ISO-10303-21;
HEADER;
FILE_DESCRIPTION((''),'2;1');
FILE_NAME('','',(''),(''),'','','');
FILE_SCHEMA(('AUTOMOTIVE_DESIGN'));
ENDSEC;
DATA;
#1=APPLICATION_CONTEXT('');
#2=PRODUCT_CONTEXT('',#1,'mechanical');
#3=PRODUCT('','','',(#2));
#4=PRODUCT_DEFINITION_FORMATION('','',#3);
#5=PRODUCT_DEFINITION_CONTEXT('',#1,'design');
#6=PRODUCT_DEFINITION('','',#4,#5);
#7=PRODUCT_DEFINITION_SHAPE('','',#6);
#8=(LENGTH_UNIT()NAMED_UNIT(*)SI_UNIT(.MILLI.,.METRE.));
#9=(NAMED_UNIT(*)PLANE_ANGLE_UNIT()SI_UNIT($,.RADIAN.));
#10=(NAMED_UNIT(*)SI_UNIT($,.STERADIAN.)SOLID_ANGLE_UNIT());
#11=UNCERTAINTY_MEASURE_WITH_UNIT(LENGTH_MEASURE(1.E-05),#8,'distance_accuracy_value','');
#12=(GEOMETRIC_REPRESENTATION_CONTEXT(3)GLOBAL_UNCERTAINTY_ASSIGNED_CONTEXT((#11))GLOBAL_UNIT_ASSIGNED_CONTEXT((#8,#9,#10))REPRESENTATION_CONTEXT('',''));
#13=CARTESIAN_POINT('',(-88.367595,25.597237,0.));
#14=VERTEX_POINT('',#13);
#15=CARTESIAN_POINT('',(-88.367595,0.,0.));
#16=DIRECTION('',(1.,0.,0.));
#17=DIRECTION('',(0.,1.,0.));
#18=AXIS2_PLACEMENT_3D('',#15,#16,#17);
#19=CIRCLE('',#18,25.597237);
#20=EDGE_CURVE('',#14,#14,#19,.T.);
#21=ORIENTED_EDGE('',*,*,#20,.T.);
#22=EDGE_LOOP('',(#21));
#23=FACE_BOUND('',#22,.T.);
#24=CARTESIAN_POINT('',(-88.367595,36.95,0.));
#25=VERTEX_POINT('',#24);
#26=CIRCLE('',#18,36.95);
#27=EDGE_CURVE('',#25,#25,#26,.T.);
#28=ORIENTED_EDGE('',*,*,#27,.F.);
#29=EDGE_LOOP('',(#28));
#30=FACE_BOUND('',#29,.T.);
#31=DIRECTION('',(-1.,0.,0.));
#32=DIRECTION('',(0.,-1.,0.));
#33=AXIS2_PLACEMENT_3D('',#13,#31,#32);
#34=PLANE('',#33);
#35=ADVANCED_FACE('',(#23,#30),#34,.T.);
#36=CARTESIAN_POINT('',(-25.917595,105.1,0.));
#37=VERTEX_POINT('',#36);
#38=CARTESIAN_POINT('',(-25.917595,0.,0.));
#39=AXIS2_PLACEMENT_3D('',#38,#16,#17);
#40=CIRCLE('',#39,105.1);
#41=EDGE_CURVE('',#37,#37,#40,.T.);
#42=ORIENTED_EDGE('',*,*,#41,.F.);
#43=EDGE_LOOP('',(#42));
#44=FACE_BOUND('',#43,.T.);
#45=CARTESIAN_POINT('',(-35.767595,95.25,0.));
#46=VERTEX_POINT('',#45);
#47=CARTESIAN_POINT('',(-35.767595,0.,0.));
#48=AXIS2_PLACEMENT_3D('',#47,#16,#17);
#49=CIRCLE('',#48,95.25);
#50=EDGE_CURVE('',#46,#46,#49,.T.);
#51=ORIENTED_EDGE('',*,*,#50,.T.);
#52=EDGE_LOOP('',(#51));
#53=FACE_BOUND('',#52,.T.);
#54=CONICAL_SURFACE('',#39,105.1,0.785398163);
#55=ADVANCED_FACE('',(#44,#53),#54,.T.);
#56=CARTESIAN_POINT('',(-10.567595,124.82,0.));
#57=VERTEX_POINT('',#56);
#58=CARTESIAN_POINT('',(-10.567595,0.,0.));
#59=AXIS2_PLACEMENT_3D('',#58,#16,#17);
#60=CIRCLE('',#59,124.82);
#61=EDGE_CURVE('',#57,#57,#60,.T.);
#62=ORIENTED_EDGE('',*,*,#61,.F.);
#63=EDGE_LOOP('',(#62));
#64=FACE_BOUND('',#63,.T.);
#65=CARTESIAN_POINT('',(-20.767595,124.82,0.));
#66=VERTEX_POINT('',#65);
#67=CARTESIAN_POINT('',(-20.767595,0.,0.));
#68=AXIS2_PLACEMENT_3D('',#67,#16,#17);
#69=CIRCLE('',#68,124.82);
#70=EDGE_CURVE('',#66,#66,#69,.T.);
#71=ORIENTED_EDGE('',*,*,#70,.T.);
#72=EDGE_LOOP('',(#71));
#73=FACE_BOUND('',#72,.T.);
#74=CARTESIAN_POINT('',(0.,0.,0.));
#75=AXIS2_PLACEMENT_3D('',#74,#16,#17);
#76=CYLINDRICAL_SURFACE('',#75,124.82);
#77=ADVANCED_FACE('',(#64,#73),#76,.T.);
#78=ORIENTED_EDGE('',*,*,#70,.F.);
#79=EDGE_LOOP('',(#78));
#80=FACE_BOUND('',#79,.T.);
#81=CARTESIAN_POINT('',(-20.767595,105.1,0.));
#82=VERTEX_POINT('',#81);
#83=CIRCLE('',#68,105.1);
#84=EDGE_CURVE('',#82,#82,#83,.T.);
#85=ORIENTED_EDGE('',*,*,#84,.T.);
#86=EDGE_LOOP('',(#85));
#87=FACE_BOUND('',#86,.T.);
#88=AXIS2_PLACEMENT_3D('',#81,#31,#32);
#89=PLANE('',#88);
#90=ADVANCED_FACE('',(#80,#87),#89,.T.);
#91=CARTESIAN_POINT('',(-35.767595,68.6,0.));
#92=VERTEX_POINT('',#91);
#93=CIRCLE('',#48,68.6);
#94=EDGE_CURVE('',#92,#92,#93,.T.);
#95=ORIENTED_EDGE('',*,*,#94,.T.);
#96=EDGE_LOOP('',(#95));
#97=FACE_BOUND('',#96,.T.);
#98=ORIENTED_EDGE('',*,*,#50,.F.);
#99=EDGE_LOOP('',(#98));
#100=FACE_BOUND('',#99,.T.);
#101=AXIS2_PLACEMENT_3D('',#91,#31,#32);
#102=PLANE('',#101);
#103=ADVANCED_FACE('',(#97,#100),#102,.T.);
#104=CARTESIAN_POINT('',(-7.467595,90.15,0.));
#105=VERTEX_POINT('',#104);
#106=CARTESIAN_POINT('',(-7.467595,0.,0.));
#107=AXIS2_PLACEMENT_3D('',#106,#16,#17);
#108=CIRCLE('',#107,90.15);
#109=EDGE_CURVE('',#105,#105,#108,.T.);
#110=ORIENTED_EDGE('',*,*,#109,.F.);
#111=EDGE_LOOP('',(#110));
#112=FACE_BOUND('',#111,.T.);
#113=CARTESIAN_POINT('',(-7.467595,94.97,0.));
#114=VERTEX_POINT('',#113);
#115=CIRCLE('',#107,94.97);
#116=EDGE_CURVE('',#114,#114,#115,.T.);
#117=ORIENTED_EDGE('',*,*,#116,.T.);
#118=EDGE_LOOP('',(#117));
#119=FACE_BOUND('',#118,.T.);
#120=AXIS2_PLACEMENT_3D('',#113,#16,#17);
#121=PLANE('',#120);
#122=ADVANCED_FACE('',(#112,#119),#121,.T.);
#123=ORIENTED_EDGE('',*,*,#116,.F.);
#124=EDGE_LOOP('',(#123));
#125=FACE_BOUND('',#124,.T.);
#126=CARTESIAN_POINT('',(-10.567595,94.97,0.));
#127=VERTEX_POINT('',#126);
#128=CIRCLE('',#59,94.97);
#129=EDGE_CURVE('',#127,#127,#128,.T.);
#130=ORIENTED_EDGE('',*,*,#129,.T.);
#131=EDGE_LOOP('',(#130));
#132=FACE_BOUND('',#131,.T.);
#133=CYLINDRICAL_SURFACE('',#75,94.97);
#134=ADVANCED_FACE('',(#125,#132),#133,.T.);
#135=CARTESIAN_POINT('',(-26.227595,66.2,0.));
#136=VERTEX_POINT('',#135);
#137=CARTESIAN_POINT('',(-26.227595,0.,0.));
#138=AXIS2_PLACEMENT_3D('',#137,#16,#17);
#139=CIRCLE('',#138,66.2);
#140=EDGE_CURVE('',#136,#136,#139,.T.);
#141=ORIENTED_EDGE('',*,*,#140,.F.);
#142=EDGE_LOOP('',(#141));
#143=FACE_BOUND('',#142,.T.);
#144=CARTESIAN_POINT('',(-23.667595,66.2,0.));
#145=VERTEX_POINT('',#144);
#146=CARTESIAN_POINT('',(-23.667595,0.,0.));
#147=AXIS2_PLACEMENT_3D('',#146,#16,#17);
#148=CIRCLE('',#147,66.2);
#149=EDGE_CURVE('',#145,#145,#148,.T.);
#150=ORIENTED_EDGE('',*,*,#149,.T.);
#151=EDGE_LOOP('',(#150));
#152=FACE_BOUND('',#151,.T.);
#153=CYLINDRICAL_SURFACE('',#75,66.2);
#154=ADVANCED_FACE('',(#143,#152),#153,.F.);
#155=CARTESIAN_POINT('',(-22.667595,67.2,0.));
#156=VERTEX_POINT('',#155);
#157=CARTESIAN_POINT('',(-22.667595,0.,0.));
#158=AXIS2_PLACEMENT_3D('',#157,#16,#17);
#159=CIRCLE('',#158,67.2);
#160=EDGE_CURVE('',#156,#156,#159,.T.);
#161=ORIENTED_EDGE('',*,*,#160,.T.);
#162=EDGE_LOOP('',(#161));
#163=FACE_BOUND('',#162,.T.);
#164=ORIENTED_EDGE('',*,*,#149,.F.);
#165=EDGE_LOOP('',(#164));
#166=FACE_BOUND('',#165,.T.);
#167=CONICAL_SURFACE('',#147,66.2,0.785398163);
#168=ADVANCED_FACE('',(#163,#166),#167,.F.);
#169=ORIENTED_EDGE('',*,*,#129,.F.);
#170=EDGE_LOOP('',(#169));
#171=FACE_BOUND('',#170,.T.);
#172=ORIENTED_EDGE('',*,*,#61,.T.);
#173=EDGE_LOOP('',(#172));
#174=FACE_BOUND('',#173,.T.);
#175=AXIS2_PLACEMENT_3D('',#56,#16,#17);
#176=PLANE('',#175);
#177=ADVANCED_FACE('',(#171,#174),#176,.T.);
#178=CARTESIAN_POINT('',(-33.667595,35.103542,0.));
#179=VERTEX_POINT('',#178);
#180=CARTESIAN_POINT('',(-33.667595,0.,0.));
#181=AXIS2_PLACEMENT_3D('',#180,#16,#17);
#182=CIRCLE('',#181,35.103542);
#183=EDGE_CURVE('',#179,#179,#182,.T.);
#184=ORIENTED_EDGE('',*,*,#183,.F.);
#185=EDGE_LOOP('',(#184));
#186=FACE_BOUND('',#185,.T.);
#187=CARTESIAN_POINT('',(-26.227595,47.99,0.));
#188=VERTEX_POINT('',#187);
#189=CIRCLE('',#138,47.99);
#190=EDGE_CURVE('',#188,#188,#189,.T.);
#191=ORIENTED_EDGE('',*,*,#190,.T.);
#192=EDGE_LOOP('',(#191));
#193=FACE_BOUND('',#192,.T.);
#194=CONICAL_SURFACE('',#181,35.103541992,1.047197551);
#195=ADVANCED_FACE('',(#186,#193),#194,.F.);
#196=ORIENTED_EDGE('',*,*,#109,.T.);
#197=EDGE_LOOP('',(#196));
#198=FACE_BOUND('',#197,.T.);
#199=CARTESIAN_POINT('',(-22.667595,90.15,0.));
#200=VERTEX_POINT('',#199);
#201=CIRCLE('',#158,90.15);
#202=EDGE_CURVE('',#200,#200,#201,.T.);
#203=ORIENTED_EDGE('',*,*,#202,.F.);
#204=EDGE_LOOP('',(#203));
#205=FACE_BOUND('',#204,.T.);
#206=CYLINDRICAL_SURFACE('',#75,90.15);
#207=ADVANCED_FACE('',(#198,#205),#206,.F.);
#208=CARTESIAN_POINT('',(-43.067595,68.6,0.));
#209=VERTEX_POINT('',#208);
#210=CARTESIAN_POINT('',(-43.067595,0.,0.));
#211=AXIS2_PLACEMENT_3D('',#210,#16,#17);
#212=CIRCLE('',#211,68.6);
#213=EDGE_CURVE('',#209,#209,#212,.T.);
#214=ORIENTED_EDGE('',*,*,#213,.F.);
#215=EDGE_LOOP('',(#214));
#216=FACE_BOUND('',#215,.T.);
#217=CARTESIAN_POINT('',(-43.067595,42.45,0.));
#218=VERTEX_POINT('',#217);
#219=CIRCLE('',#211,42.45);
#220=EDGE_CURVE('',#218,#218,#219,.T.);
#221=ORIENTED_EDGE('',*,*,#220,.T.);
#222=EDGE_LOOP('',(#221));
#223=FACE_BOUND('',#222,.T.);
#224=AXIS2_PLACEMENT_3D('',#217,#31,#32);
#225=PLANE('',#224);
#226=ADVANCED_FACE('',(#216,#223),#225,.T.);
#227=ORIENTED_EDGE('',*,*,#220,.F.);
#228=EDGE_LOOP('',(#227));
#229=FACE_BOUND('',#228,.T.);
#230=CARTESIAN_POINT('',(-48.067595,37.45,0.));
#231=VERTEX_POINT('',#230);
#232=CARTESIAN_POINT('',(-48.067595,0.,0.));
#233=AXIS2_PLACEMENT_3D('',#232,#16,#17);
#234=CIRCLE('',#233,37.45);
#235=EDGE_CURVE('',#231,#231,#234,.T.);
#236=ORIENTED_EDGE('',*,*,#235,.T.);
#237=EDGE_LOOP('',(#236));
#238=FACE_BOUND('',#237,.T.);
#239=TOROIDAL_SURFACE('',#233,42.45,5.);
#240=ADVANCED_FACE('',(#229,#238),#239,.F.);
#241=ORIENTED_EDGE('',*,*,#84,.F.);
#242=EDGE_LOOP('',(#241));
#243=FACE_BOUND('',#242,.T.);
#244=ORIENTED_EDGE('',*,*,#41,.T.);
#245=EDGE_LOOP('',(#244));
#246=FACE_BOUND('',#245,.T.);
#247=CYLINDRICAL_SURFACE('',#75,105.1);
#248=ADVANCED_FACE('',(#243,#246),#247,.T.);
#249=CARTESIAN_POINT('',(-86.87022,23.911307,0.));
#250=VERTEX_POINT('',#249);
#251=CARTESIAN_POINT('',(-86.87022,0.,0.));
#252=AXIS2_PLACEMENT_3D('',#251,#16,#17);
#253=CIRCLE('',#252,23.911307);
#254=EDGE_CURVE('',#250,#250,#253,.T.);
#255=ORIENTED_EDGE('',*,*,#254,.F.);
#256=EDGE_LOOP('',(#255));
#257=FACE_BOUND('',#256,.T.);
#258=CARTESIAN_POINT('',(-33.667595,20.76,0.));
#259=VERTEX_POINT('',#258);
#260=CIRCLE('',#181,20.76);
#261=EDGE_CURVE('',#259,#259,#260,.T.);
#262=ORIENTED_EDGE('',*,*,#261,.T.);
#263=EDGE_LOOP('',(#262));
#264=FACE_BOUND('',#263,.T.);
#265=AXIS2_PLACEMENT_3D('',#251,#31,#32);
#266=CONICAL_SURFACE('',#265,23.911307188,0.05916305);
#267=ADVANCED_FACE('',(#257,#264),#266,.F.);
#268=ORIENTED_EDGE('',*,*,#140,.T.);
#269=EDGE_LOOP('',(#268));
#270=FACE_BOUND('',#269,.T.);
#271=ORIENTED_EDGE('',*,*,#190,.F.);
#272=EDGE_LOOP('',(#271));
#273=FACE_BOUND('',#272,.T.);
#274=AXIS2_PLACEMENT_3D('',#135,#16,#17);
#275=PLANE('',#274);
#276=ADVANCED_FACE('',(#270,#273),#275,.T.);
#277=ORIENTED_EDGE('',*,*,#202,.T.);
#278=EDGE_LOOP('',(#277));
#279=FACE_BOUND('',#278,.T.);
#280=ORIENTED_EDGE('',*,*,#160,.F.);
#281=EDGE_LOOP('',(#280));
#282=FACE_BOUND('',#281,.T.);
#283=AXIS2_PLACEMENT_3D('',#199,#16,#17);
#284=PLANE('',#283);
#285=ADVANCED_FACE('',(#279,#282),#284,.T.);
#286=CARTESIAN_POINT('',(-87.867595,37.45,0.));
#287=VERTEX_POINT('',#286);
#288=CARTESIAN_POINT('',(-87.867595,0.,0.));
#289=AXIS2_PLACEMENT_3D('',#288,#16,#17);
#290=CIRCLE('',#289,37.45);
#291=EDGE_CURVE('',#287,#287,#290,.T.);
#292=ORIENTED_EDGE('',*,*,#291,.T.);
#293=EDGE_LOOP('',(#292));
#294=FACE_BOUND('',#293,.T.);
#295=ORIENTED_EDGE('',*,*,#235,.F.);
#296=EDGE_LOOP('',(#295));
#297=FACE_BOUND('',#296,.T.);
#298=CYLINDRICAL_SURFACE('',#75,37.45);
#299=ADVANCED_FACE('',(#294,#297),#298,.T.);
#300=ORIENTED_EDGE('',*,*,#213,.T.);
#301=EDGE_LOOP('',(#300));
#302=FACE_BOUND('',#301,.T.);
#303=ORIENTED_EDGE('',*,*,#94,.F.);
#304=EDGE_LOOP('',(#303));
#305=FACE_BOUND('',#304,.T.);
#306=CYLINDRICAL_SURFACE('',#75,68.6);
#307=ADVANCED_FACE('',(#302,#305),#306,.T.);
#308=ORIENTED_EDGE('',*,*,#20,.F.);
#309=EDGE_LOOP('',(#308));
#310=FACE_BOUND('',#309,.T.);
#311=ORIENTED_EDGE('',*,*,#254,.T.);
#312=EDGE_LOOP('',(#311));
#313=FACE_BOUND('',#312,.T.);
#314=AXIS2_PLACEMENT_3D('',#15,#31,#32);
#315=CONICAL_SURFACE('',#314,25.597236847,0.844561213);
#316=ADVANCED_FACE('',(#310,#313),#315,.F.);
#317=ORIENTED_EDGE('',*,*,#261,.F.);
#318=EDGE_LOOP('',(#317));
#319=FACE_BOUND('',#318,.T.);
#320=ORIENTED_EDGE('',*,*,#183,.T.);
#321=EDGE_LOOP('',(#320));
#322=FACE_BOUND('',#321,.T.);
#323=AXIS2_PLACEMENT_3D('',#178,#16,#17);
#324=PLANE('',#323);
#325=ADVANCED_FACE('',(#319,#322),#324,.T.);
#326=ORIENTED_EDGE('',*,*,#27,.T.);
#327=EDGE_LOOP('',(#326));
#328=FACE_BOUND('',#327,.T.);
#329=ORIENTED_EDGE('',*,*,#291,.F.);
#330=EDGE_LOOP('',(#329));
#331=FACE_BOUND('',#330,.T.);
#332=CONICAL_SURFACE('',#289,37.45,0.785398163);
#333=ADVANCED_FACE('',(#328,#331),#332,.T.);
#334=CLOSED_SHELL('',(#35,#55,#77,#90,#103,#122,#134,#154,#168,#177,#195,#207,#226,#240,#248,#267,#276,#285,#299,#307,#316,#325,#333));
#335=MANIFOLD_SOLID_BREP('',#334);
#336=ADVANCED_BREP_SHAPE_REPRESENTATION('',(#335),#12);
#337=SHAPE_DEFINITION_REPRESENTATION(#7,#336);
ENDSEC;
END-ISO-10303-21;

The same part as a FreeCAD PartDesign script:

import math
import FreeCAD as App
import Part
import Sketcher
Q = App.Units.Quantity

doc = App.newDocument("Part")
body = doc.addObject("PartDesign::Body", "Body")

sketch1 = body.newObject("Sketcher::SketchObject", "Sketch")
sketch1.AttachmentSupport = (doc.getObject("XY_Plane"), [""])
sketch1.MapMode = "FlatFace"
sketch1.addGeometry(Part.LineSegment(App.Vector(-88.367595, 36.95, 0), App.Vector(-88.367595, 25.597237, 0)), False)
sketch1.addGeometry(Part.LineSegment(App.Vector(-88.367595, 25.597237, 0), App.Vector(-86.87022, 23.911307, 0)), False)
sketch1.addGeometry(Part.LineSegment(App.Vector(-86.87022, 23.911307, 0), App.Vector(-33.667595, 20.76, 0)), False)
sketch1.addGeometry(Part.LineSegment(App.Vector(-33.667595, 20.76, 0), App.Vector(-33.667595, 35.103542, 0)), False)
sketch1.addGeometry(Part.LineSegment(App.Vector(-33.667595, 35.103542, 0), App.Vector(-26.227595, 47.99, 0)), False)
sketch1.addGeometry(Part.LineSegment(App.Vector(-26.227595, 47.99, 0), App.Vector(-26.227595, 66.2, 0)), False)
sketch1.addGeometry(Part.LineSegment(App.Vector(-26.227595, 66.2, 0), App.Vector(-23.667595, 66.2, 0)), False)
sketch1.addGeometry(Part.LineSegment(App.Vector(-23.667595, 66.2, 0), App.Vector(-22.667595, 67.2, 0)), False)
sketch1.addGeometry(Part.LineSegment(App.Vector(-22.667595, 67.2, 0), App.Vector(-22.667595, 90.15, 0)), False)
sketch1.addGeometry(Part.LineSegment(App.Vector(-22.667595, 90.15, 0), App.Vector(-7.467595, 90.15, 0)), False)
sketch1.addGeometry(Part.LineSegment(App.Vector(-7.467595, 90.15, 0), App.Vector(-7.467595, 94.97, 0)), False)
sketch1.addGeometry(Part.LineSegment(App.Vector(-7.467595, 94.97, 0), App.Vector(-10.567595, 94.97, 0)), False)
sketch1.addGeometry(Part.LineSegment(App.Vector(-10.567595, 94.97, 0), App.Vector(-10.567595, 124.82, 0)), False)
sketch1.addGeometry(Part.LineSegment(App.Vector(-10.567595, 124.82, 0), App.Vector(-20.767595, 124.82, 0)), False)
sketch1.addGeometry(Part.LineSegment(App.Vector(-20.767595, 124.82, 0), App.Vector(-20.767595, 105.1, 0)), False)
sketch1.addGeometry(Part.LineSegment(App.Vector(-20.767595, 105.1, 0), App.Vector(-25.917595, 105.1, 0)), False)
sketch1.addGeometry(Part.LineSegment(App.Vector(-25.917595, 105.1, 0), App.Vector(-35.767595, 95.25, 0)), False)
sketch1.addGeometry(Part.LineSegment(App.Vector(-35.767595, 95.25, 0), App.Vector(-35.767595, 68.6, 0)), False)
sketch1.addGeometry(Part.LineSegment(App.Vector(-35.767595, 68.6, 0), App.Vector(-43.067595, 68.6, 0)), False)
sketch1.addGeometry(Part.LineSegment(App.Vector(-43.067595, 68.6, 0), App.Vector(-43.067595, 42.45, 0)), False)
sketch1.addGeometry(Part.ArcOfCircle(Part.Circle(App.Vector(-48.067595, 42.45, 0), App.Vector(0, 0, 1), 5), math.radians(-90), math.radians(0)), False)
sketch1.addGeometry(Part.LineSegment(App.Vector(-48.067595, 37.45, 0), App.Vector(-87.867595, 37.45, 0)), False)
sketch1.addGeometry(Part.LineSegment(App.Vector(-87.867595, 37.45, 0), App.Vector(-88.367595, 36.95, 0)), False)
sketch1.addConstraint(Sketcher.Constraint("Coincident", 0, 2, 1, 1))
sketch1.addConstraint(Sketcher.Constraint("Coincident", 1, 2, 2, 1))
sketch1.addConstraint(Sketcher.Constraint("Coincident", 2, 2, 3, 1))
sketch1.addConstraint(Sketcher.Constraint("Coincident", 3, 2, 4, 1))
sketch1.addConstraint(Sketcher.Constraint("Coincident", 4, 2, 5, 1))
sketch1.addConstraint(Sketcher.Constraint("Coincident", 5, 2, 6, 1))
sketch1.addConstraint(Sketcher.Constraint("Coincident", 6, 2, 7, 1))
sketch1.addConstraint(Sketcher.Constraint("Coincident", 7, 2, 8, 1))
sketch1.addConstraint(Sketcher.Constraint("Coincident", 8, 2, 9, 1))
sketch1.addConstraint(Sketcher.Constraint("Coincident", 9, 2, 10, 1))
sketch1.addConstraint(Sketcher.Constraint("Coincident", 10, 2, 11, 1))
sketch1.addConstraint(Sketcher.Constraint("Coincident", 11, 2, 12, 1))
sketch1.addConstraint(Sketcher.Constraint("Coincident", 12, 2, 13, 1))
sketch1.addConstraint(Sketcher.Constraint("Coincident", 13, 2, 14, 1))
sketch1.addConstraint(Sketcher.Constraint("Coincident", 14, 2, 15, 1))
sketch1.addConstraint(Sketcher.Constraint("Coincident", 15, 2, 16, 1))
sketch1.addConstraint(Sketcher.Constraint("Coincident", 16, 2, 17, 1))
sketch1.addConstraint(Sketcher.Constraint("Coincident", 17, 2, 18, 1))
sketch1.addConstraint(Sketcher.Constraint("Coincident", 18, 2, 19, 1))
sketch1.addConstraint(Sketcher.Constraint("Tangent", 19, 2, 20, 2))
sketch1.addConstraint(Sketcher.Constraint("Tangent", 20, 1, 21, 1))
sketch1.addConstraint(Sketcher.Constraint("Coincident", 21, 2, 22, 1))
sketch1.addConstraint(Sketcher.Constraint("Coincident", 22, 2, 0, 1))
sketch1.addConstraint(Sketcher.Constraint("Vertical", 0))
sketch1.addConstraint(Sketcher.Constraint("Vertical", 3))
sketch1.addConstraint(Sketcher.Constraint("Vertical", 5))
sketch1.addConstraint(Sketcher.Constraint("Horizontal", 6))
sketch1.addConstraint(Sketcher.Constraint("Vertical", 8))
sketch1.addConstraint(Sketcher.Constraint("Horizontal", 9))
sketch1.addConstraint(Sketcher.Constraint("Vertical", 10))
sketch1.addConstraint(Sketcher.Constraint("Horizontal", 11))
sketch1.addConstraint(Sketcher.Constraint("Vertical", 12))
sketch1.addConstraint(Sketcher.Constraint("Horizontal", 13))
sketch1.addConstraint(Sketcher.Constraint("Vertical", 14))
sketch1.addConstraint(Sketcher.Constraint("Horizontal", 15))
sketch1.addConstraint(Sketcher.Constraint("Vertical", 17))
sketch1.addConstraint(Sketcher.Constraint("Horizontal", 18))
sketch1.addConstraint(Sketcher.Constraint("Vertical", 19))
sketch1.addConstraint(Sketcher.Constraint("Horizontal", 21))
sketch1.addConstraint(Sketcher.Constraint("Parallel", 7, 16))
sketch1.addConstraint(Sketcher.Constraint("Parallel", 16, 22))
sketch1.addConstraint(Sketcher.Constraint("Radius", 20, Q("5 mm")))
sketch1.addConstraint(Sketcher.Constraint("Angle", 4, Q("60 deg")))
sketch1.addConstraint(Sketcher.Constraint("Angle", 7, Q("45 deg")))
sketch1.addConstraint(Sketcher.Constraint("DistanceX", 9, 1, 9, 2, Q("15.2 mm")))
sketch1.addConstraint(Sketcher.Constraint("DistanceX", 11, 2, 11, 1, Q("3.1 mm")))
sketch1.addConstraint(Sketcher.Constraint("DistanceX", 13, 2, 13, 1, Q("10.2 mm")))
sketch1.addConstraint(Sketcher.Constraint("DistanceX", 18, 2, 18, 1, Q("7.3 mm")))
sketch1.addConstraint(Sketcher.Constraint("DistanceX", 21, 2, 21, 1, Q("39.8 mm")))
sketch1.addConstraint(Sketcher.Constraint("DistanceX", 3, 2, 6, 2, Q("10 mm")))
sketch1.addConstraint(Sketcher.Constraint("DistanceX", 6, 2, 7, 2, Q("1 mm")))
sketch1.addConstraint(Sketcher.Constraint("DistanceX", 16, 2, 14, 2, Q("15 mm")))
sketch1.addConstraint(Sketcher.Constraint("DistanceX", 6, 1, 6, 2, Q("2.56 mm")))
sketch1.addConstraint(Sketcher.Constraint("DistanceX", 15, 2, 15, 1, Q("5.15 mm")))
sketch1.addConstraint(Sketcher.Constraint("DistanceY", 5, 1, 5, 2, Q("18.21 mm")))
sketch1.addConstraint(Sketcher.Constraint("DistanceY", 8, 1, 8, 2, Q("22.95 mm")))
sketch1.addConstraint(Sketcher.Constraint("DistanceY", 10, 1, 10, 2, Q("4.82 mm")))
sketch1.addConstraint(Sketcher.Constraint("DistanceY", 12, 1, 12, 2, Q("29.85 mm")))
sketch1.addConstraint(Sketcher.Constraint("DistanceY", 14, 2, 14, 1, Q("19.72 mm")))
sketch1.addConstraint(Sketcher.Constraint("DistanceY", 17, 2, 17, 1, Q("26.65 mm")))
sketch1.addConstraint(Sketcher.Constraint("DistanceY", 19, 2, 19, 1, Q("26.15 mm")))
sketch1.addConstraint(Sketcher.Constraint("DistanceY", -1, 1, 5, 2, Q("66.2 mm")))
sketch1.addConstraint(Sketcher.Constraint("DistanceX", 0, 2, 20, 3, Q("40.3 mm")))
sketch1.addConstraint(Sketcher.Constraint("DistanceY", -1, 1, 2, 2, Q("20.76 mm")))
sketch1.addConstraint(Sketcher.Constraint("Distance", 1, Q("2.254882 mm")))
sketch1.addConstraint(Sketcher.Constraint("DistanceY", 0, 2, 0, 1, Q("11.352763 mm")))
sketch1.addConstraint(Sketcher.Constraint("DistanceX", 1, 2, -1, 1, Q("86.87022 mm")))
sketch1.addConstraint(Sketcher.Constraint("DistanceY", 1, 2, 0, 2, Q("1.68593 mm")))
revolution = body.newObject("PartDesign::Revolution", "Revolution")
revolution.Profile = sketch1
revolution.ReferenceAxis = (sketch1, ["H_Axis"])
revolution.Angle = 360

doc.recompute()
